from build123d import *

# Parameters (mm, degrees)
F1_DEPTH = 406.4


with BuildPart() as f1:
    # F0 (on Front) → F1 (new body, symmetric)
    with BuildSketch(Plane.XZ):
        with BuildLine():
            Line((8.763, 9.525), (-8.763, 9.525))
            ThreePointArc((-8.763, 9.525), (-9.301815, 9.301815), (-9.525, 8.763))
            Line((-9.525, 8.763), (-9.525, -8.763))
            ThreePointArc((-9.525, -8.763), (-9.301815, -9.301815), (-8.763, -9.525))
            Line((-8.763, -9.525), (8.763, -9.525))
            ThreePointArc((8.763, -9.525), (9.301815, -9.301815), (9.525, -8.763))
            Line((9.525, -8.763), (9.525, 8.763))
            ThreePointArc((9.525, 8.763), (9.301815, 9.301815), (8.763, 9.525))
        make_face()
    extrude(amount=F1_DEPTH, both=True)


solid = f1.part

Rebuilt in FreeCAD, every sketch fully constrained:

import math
import FreeCAD as App
import Part
import Sketcher
Q = App.Units.Quantity

doc = App.newDocument("Part")
body = doc.addObject("PartDesign::Body", "Body")

sketch1 = doc.addObject("Sketcher::SketchObject", "Sketch")
body.addObject(sketch1)
sketch1.AttachmentSupport = (doc.XZ_Plane, [""])
sketch1.MapMode = "FlatFace"
sketch1.addGeometry([
    Part.LineSegment(App.Vector(8.8, 9.5, 0), App.Vector(-8.8, 9.5, 0)),
    Part.ArcOfCircle(Part.Circle(App.Vector(-8.8, 8.8, 0), App.Vector(0, 0, 1), 0.8), math.radians(90), math.radians(180)),
    Part.LineSegment(App.Vector(-9.5, 8.8, 0), App.Vector(-9.5, -8.8, 0)),
    Part.ArcOfCircle(Part.Circle(App.Vector(-8.8, -8.8, 0), App.Vector(0, 0, 1), 0.8), math.radians(-180), math.radians(-90)),
    Part.LineSegment(App.Vector(-8.8, -9.5, 0), App.Vector(8.8, -9.5, 0)),
    Part.ArcOfCircle(Part.Circle(App.Vector(8.8, -8.8, 0), App.Vector(0, 0, 1), 0.8), math.radians(-90), math.radians(0)),
    Part.LineSegment(App.Vector(9.5, -8.8, 0), App.Vector(9.5, 8.8, 0)),
    Part.ArcOfCircle(Part.Circle(App.Vector(8.8, 8.8, 0), App.Vector(0, 0, 1), 0.8), math.radians(0), math.radians(90)),
], False)
sketch1.addConstraint([
    Sketcher.Constraint("Tangent", 0, 2, 1, 1),
    Sketcher.Constraint("Tangent", 1, 2, 2, 1),
    Sketcher.Constraint("Tangent", 2, 2, 3, 1),
    Sketcher.Constraint("Tangent", 3, 2, 4, 1),
    Sketcher.Constraint("Tangent", 4, 2, 5, 1),
    Sketcher.Constraint("Tangent", 5, 2, 6, 1),
    Sketcher.Constraint("Tangent", 6, 2, 7, 1),
    Sketcher.Constraint("Tangent", 7, 2, 0, 1),
    Sketcher.Constraint("Horizontal", 0),
    Sketcher.Constraint("Vertical", 2),
    Sketcher.Constraint("Horizontal", 4),
    Sketcher.Constraint("Vertical", 6),
    Sketcher.Constraint("Equal", 1, 3),
    Sketcher.Constraint("Equal", 3, 5),
    Sketcher.Constraint("Equal", 5, 7),
    Sketcher.Constraint("Symmetric", 1, 3, 5, 3, -1, 1),
    Sketcher.Constraint("Equal", 4, 2),
    Sketcher.Constraint("Radius", 1, Q("0.03 in")),
    Sketcher.Constraint("DistanceX", 0, 2, 0, 1, Q("0.69 in")),
])
pad1 = doc.addObject("PartDesign::Pad", "Pad")
body.addObject(pad1)
pad1.Profile = sketch1
pad1.Length = Q("32 in")
pad1.Midplane = True

doc.recompute()
